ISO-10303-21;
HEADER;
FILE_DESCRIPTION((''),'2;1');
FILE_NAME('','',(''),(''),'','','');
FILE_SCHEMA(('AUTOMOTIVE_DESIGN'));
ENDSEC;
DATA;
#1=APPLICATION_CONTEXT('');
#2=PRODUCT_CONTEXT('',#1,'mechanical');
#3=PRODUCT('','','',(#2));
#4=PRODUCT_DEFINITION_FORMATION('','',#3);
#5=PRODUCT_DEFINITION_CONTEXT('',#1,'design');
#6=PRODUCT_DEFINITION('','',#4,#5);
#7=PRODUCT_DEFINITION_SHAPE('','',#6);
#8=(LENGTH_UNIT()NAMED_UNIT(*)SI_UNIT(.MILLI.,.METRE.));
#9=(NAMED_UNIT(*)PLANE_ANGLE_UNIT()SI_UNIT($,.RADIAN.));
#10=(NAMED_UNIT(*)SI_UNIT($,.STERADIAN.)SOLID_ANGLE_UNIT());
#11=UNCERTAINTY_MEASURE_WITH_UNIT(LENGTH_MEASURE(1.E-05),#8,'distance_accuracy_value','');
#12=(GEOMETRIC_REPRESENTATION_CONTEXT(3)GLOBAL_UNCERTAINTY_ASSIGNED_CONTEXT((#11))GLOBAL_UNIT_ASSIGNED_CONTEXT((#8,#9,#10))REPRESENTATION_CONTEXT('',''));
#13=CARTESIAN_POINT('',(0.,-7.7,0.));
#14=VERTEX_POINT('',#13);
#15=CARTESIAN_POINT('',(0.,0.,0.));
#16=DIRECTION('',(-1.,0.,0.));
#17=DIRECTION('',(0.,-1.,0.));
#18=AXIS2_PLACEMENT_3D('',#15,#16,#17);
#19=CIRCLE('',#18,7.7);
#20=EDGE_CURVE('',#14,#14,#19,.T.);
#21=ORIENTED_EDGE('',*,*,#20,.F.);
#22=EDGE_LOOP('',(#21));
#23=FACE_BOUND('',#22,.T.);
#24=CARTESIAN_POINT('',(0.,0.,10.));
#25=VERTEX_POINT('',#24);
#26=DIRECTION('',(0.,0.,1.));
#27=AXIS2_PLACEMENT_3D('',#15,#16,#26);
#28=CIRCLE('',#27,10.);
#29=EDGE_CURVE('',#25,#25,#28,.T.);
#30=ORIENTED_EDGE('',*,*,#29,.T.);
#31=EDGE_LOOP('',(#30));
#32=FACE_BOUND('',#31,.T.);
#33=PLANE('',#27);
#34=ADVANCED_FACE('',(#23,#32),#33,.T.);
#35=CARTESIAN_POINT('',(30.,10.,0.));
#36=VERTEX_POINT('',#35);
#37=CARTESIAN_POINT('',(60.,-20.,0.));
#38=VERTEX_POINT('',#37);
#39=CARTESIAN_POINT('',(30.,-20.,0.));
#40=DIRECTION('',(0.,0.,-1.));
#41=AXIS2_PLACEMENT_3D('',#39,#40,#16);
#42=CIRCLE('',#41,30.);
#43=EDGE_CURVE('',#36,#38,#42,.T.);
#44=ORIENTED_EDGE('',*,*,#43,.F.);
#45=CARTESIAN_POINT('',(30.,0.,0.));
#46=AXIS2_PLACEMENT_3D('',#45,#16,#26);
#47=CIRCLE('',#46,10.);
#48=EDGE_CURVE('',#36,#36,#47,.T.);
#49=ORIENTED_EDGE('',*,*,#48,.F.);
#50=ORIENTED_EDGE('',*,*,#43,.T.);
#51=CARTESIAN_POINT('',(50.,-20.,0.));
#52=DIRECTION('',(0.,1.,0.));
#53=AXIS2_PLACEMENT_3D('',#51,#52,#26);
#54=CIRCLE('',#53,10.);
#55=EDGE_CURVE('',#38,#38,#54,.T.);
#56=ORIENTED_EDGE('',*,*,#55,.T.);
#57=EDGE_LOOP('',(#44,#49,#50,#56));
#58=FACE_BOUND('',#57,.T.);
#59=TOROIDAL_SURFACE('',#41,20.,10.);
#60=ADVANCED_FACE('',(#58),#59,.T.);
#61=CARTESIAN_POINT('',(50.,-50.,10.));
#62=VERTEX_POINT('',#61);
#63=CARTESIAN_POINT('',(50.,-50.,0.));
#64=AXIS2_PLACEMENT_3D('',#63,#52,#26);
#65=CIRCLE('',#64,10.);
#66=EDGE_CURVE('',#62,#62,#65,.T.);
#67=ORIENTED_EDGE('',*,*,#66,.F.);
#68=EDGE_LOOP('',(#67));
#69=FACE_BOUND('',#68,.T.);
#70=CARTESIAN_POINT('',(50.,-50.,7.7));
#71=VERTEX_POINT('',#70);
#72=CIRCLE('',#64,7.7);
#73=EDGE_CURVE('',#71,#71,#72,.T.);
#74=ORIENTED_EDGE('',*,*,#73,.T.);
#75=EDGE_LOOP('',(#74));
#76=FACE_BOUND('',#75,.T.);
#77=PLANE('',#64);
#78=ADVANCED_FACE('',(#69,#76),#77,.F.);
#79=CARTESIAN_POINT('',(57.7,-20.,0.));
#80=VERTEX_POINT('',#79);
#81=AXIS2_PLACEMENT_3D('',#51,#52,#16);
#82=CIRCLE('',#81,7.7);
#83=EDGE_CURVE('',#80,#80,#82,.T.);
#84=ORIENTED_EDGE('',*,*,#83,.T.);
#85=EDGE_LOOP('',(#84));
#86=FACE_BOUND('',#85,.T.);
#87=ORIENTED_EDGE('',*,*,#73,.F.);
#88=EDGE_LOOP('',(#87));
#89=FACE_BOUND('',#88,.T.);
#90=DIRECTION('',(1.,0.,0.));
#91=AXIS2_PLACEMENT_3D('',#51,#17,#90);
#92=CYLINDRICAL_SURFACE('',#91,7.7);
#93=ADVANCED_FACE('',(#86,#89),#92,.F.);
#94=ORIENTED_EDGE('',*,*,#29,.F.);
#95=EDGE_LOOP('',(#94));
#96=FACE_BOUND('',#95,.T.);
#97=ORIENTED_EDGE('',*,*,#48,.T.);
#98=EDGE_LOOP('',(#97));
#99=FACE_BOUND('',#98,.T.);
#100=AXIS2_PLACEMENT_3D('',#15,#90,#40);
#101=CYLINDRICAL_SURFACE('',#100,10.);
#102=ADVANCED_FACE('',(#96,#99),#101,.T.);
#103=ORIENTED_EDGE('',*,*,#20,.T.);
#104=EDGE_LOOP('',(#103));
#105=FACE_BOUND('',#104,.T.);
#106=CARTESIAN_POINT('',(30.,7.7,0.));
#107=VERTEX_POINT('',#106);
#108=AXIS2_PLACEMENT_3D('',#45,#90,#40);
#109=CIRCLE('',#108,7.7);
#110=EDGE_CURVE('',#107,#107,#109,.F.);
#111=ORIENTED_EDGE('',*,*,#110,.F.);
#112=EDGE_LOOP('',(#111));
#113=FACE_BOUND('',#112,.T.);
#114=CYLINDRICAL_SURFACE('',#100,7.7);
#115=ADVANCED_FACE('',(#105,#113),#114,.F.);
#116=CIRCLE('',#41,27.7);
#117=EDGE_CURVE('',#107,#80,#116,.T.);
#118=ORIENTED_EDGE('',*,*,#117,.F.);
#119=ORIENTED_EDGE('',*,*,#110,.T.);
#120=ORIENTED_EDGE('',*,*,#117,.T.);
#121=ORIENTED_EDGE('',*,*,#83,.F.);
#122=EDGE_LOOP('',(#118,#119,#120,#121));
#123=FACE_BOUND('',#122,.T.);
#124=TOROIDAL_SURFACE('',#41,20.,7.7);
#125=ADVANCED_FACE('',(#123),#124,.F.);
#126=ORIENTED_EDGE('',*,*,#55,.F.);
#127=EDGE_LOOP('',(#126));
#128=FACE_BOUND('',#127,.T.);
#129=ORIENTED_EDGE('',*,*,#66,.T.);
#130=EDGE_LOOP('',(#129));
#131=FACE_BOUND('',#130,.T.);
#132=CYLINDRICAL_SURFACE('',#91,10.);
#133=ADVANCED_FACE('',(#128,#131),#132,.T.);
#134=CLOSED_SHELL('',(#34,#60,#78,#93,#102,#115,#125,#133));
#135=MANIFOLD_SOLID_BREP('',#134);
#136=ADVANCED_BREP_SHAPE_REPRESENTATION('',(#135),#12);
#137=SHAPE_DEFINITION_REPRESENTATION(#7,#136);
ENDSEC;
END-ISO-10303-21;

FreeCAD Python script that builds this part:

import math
import FreeCAD as App
import Part
import Sketcher
from FreeCAD import Vector
Q = App.Units.Quantity


def faces_at(feature, points):
    """Names of the faces that lie closest to the given points."""
    faces = feature.Shape.Faces
    near = lambda p: min(range(len(faces)), key=lambda i: faces[i].distToShape(Part.Vertex(*p))[0])
    return sorted({f"Face{near(p) + 1}" for p in points})

doc = App.newDocument("Part")
body = doc.addObject("PartDesign::Body", "Body")

sketch1 = body.newObject("Sketcher::SketchObject", "Sketch")
sketch1.AttachmentSupport = (doc.getObject("YZ_Plane"), [""])
sketch1.MapMode = "FlatFace"
sketch1.addGeometry(Part.Circle(Vector(0, 0, 0), Vector(0, 0, 1), 10), False)
sketch1.addConstraint(Sketcher.Constraint("Coincident", 0, 3, -1, 1))
sketch1.addConstraint(Sketcher.Constraint("Diameter", 0, Q("20 mm")))

sketch2 = body.newObject("Sketcher::SketchObject", "Sketch001")
sketch2.AttachmentSupport = (doc.getObject("XY_Plane"), [""])
sketch2.MapMode = "FlatFace"
sketch2.addGeometry(Part.LineSegment(Vector(0, 0, 0), Vector(30, 0, 0)), False)
sketch2.addGeometry(Part.ArcOfCircle(Part.Circle(Vector(30, -20, 0), Vector(0, 0, 1), 20), math.radians(0), math.radians(90)), False)
sketch2.addGeometry(Part.LineSegment(Vector(50, -20, 0), Vector(50, -50, 0)), False)
sketch2.addConstraint(Sketcher.Constraint("Tangent", 0, 2, 1, 2))
sketch2.addConstraint(Sketcher.Constraint("Tangent", 1, 1, 2, 1))
sketch2.addConstraint(Sketcher.Constraint("Horizontal", 0))
sketch2.addConstraint(Sketcher.Constraint("Vertical", 2))
sketch2.addConstraint(Sketcher.Constraint("Coincident", 0, 1, -1, 1))
sketch2.addConstraint(Sketcher.Constraint("Equal", 0, 2))
sketch2.addConstraint(Sketcher.Constraint("Radius", 1, Q("20 mm")))
sketch2.addConstraint(Sketcher.Constraint("DistanceX", 0, 1, 0, 2, Q("30 mm")))
doc.recompute()

additivepipe = body.newObject("PartDesign::AdditivePipe", "AdditivePipe")
additivepipe.Profile = sketch1
additivepipe.Spine = (sketch2, ["Edge1", "Edge2", "Edge3"])
doc.recompute()

thickness = body.newObject("PartDesign::Thickness", "Thickness")
thickness.Base = (additivepipe, faces_at(additivepipe, [(50, -50, 0), (0, 0, 0)]))
thickness.Value = 2.3
thickness.Reversed = True
thickness.Join = "Intersection"

doc.recompute()
